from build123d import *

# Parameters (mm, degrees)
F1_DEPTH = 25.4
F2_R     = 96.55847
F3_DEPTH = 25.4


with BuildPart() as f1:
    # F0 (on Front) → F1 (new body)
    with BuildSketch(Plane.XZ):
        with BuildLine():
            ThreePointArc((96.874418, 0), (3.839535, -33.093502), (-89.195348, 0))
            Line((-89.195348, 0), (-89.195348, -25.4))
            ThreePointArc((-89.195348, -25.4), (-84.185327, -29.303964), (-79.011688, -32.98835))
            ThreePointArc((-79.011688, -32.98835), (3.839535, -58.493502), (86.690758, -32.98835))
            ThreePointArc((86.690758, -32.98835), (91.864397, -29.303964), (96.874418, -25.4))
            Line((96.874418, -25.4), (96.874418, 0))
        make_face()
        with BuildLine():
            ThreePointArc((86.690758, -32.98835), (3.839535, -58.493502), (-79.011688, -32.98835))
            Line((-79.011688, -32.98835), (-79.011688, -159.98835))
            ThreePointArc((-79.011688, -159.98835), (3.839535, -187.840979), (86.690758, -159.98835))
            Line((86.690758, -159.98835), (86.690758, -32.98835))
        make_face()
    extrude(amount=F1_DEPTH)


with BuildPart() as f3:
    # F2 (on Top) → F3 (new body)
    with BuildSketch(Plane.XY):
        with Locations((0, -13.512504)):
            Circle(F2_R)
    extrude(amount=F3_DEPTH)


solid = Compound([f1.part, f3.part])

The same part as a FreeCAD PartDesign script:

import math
import FreeCAD as App
import Part
import Sketcher
from FreeCAD import Vector
Q = App.Units.Quantity

doc = App.newDocument("Part")
body = doc.addObject("PartDesign::Body", "Body")

# Sketch on XZ plane
sketch1 = doc.addObject("Sketcher::SketchObject", "Sketch")
body.addObject(sketch1)
sketch1.AttachmentSupport = (doc.XZ_Plane, [""])
sketch1.MapMode = "FlatFace"
sketch1.addGeometry(Part.ArcOfCircle(Part.Circle(Vector(4, 114, 0), Vector(0, 0, 1), 147), math.radians(-129), math.radians(-51)), False)
sketch1.addGeometry(Part.LineSegment(Vector(-89, 0, 0), Vector(-89, -25, 0)), False)
sketch1.addGeometry(Part.ArcOfCircle(Part.Circle(Vector(4, 89, 0), Vector(0, 0, 1), 147), math.radians(-129.16), math.radians(-124.22)), False)
sketch1.addGeometry(Part.LineSegment(Vector(-79, -33, 0), Vector(-79, -160, 0)), False)
sketch1.addGeometry(Part.ArcOfCircle(Part.Circle(Vector(4, -51, 0), Vector(0, 0, 1), 137), math.radians(-127), math.radians(-53)), False)
sketch1.addGeometry(Part.LineSegment(Vector(87, -160, 0), Vector(87, -33, 0)), False)
sketch1.addGeometry(Part.ArcOfCircle(Part.Circle(Vector(4, 89, 0), Vector(0, 0, 1), 147), math.radians(-55.78), math.radians(-50.84)), False)
sketch1.addGeometry(Part.LineSegment(Vector(97, -25, 0), Vector(97, 0, 0)), False)
sketch1.addConstraint(Sketcher.Constraint("Coincident", 0, 1, 1, 1))
sketch1.addConstraint(Sketcher.Constraint("Coincident", 1, 2, 2, 1))
sketch1.addConstraint(Sketcher.Constraint("Coincident", 2, 2, 3, 1))
sketch1.addConstraint(Sketcher.Constraint("Coincident", 3, 2, 4, 1))
sketch1.addConstraint(Sketcher.Constraint("Coincident", 4, 2, 5, 1))
sketch1.addConstraint(Sketcher.Constraint("Coincident", 5, 2, 6, 1))
sketch1.addConstraint(Sketcher.Constraint("Coincident", 6, 2, 7, 1))
sketch1.addConstraint(Sketcher.Constraint("Coincident", 7, 2, 0, 2))
sketch1.addConstraint(Sketcher.Constraint("Vertical", 1))
sketch1.addConstraint(Sketcher.Constraint("Vertical", 3))
sketch1.addConstraint(Sketcher.Constraint("Vertical", 5))
sketch1.addConstraint(Sketcher.Constraint("Vertical", 7))
sketch1.addConstraint(Sketcher.Constraint("Equal", 2, 6))
sketch1.addConstraint(Sketcher.Constraint("PointOnObject", 0, 1, -1))
sketch1.addConstraint(Sketcher.Constraint("PointOnObject", 7, 2, -1))
sketch1.addConstraint(Sketcher.Constraint("Horizontal", 2, 3, 6, 3))
sketch1.addConstraint(Sketcher.Constraint("Horizontal", 3, 2, 4, 2))
sketch1.addConstraint(Sketcher.Constraint("Horizontal", 2, 2, 5, 2))
sketch1.addConstraint(Sketcher.Constraint("Horizontal", 1, 2, 6, 2))
sketch1.addConstraint(Sketcher.Constraint("Radius", 0, Q("5.7999999 in")))
sketch1.addConstraint(Sketcher.Constraint("DistanceY", 1, 2, 1, 1, Q("1 in")))
sketch1.addConstraint(Sketcher.Constraint("DistanceY", 3, 2, 3, 1, Q("5 in")))
sketch1.addConstraint(Sketcher.Constraint("Radius", 2, 147.319783))
sketch1.addConstraint(Sketcher.Constraint("Radius", 4, 137.152118))
sketch1.addConstraint(Sketcher.Constraint("DistanceY", 4, 3, -1, 1, 50.688861))
sketch1.addConstraint(Sketcher.Constraint("DistanceX", 0, 1, -1, 1, 89.195348))
sketch1.addConstraint(Sketcher.Constraint("DistanceY", 2, 2, -1, 1, 32.98835))
sketch1.addConstraint(Sketcher.Constraint("DistanceX", 3, 2, -1, 1, 79.011688))
pad1 = doc.addObject("PartDesign::Pad", "Pad")
body.addObject(pad1)
pad1.Profile = sketch1
pad1.Length = Q("1 in")
body2 = doc.addObject("PartDesign::Body", "Body001")

# Sketch on XY plane
sketch2 = doc.addObject("Sketcher::SketchObject", "Sketch001")
body2.addObject(sketch2)
sketch2.AttachmentSupport = (doc.getObject("XY_Plane001"), [""])
sketch2.MapMode = "FlatFace"
sketch2.addGeometry(Part.Circle(Vector(0, -14, 0), Vector(0, 0, 1), 97), False)
sketch2.addConstraint(Sketcher.Constraint("PointOnObject", 0, 3, -2))
sketch2.addConstraint(Sketcher.Constraint("Diameter", 0, 193.11694))
sketch2.addConstraint(Sketcher.Constraint("DistanceY", 0, 3, -1, 1, 13.512504))
pad2 = doc.addObject("PartDesign::Pad", "Pad001")
body2.addObject(pad2)
pad2.Profile = sketch2
pad2.Length = Q("1 in")

doc.recompute()
